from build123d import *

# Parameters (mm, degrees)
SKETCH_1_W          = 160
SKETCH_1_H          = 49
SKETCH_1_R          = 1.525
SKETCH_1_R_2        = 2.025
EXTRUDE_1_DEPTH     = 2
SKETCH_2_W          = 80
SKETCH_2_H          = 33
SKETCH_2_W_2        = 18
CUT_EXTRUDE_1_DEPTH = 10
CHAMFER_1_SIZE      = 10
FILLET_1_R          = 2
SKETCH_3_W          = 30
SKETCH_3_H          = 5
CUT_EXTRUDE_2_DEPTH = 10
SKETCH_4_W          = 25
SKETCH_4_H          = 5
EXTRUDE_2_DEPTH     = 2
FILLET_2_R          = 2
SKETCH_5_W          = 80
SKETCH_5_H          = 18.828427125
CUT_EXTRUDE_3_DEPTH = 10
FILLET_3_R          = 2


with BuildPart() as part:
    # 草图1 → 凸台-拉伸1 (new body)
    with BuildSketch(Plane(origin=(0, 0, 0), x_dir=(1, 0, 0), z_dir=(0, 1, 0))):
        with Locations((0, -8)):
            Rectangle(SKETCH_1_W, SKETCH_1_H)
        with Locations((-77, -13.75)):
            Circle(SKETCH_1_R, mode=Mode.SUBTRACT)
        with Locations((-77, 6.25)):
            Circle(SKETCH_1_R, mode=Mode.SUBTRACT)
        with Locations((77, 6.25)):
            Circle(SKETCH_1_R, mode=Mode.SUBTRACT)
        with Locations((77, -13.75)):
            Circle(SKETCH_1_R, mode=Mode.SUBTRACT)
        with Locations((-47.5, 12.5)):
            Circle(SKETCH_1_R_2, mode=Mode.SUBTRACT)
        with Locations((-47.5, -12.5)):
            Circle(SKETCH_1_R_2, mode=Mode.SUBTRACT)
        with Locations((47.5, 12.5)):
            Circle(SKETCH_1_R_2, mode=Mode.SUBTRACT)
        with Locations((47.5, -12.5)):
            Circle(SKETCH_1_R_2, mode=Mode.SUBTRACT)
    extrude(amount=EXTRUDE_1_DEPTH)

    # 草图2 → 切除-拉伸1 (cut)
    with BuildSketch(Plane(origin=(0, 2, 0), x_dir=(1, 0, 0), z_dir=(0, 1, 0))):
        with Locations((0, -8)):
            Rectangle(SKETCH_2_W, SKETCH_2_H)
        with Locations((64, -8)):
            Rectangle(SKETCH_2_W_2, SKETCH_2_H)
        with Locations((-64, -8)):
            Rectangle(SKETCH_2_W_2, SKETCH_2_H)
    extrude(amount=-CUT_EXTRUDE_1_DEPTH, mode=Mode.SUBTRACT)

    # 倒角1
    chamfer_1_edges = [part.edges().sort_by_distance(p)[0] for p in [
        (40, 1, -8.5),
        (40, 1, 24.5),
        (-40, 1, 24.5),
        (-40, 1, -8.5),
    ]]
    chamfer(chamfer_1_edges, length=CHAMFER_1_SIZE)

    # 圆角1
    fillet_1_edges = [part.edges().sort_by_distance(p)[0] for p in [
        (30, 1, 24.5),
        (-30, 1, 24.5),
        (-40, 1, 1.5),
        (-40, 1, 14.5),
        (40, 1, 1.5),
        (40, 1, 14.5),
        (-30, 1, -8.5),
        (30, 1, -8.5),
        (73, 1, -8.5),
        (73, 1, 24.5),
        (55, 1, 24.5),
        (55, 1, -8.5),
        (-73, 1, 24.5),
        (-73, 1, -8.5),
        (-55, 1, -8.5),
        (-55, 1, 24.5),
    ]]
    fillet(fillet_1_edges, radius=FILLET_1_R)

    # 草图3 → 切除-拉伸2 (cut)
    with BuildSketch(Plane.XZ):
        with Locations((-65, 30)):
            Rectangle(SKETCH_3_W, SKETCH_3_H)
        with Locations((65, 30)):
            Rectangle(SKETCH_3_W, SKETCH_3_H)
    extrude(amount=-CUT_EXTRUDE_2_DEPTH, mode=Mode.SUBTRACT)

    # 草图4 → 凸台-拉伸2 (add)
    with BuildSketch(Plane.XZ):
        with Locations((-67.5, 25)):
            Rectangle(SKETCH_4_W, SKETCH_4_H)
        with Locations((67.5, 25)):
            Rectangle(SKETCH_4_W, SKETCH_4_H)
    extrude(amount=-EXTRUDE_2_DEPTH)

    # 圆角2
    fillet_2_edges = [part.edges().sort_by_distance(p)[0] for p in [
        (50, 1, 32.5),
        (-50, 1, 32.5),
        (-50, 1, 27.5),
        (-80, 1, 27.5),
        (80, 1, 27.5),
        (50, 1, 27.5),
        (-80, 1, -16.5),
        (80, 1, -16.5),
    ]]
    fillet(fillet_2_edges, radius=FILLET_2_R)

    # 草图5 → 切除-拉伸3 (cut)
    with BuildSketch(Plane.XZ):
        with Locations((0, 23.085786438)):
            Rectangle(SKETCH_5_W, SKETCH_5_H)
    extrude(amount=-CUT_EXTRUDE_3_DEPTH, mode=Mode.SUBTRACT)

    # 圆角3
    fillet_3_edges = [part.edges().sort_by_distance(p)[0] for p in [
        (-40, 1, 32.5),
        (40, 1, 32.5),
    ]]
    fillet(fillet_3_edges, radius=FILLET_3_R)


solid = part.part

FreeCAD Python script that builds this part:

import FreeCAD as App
import Part
import Sketcher
Q = App.Units.Quantity


def edges_at(feature, points):
    """Names of the edges that pass closest to the given points."""
    edges = feature.Shape.Edges
    near = lambda p: min(range(len(edges)), key=lambda i: edges[i].distToShape(Part.Vertex(*p))[0])
    return sorted({f"Edge{near(p) + 1}" for p in points})

doc = App.newDocument("Part")
body = doc.addObject("PartDesign::Body", "Body")

sketch1 = body.newObject("Sketcher::SketchObject", "Sketch")
sketch1.AttachmentSupport = (doc.getObject("XZ_Plane"), [""])
sketch1.MapMode = "FlatFace"
sketch1.addGeometry(Part.LineSegment(App.Vector(-80, -16.5, 0), App.Vector(-80, 32.5, 0)), False)
sketch1.addGeometry(Part.LineSegment(App.Vector(-80, 32.5, 0), App.Vector(80, 32.5, 0)), False)
sketch1.addGeometry(Part.LineSegment(App.Vector(80, 32.5, 0), App.Vector(80, -16.5, 0)), False)
sketch1.addGeometry(Part.LineSegment(App.Vector(80, -16.5, 0), App.Vector(-80, -16.5, 0)), False)
sketch1.addGeometry(Part.Circle(App.Vector(-77, 13.8, 0), App.Vector(0, 0, 1), 1.5), False)
sketch1.addGeometry(Part.Circle(App.Vector(-47.5, 12.5, 0), App.Vector(0, 0, 1), 2), False)
sketch1.addGeometry(Part.Circle(App.Vector(47.5, 12.5, 0), App.Vector(0, 0, 1), 2), False)
sketch1.addGeometry(Part.Circle(App.Vector(77, 13.8, 0), App.Vector(0, 0, 1), 1.5), False)
sketch1.addGeometry(Part.Circle(App.Vector(-77, -6.2, 0), App.Vector(0, 0, 1), 1.5), False)
sketch1.addGeometry(Part.Circle(App.Vector(-47.5, -12.5, 0), App.Vector(0, 0, 1), 2), False)
sketch1.addGeometry(Part.Circle(App.Vector(77, -6.2, 0), App.Vector(0, 0, 1), 1.5), False)
sketch1.addGeometry(Part.Circle(App.Vector(47.5, -12.5, 0), App.Vector(0, 0, 1), 2), False)
sketch1.addConstraint(Sketcher.Constraint("Coincident", 0, 2, 1, 1))
sketch1.addConstraint(Sketcher.Constraint("Coincident", 1, 2, 2, 1))
sketch1.addConstraint(Sketcher.Constraint("Coincident", 2, 2, 3, 1))
sketch1.addConstraint(Sketcher.Constraint("Coincident", 3, 2, 0, 1))
sketch1.addConstraint(Sketcher.Constraint("Vertical", 0))
sketch1.addConstraint(Sketcher.Constraint("Horizontal", 1))
sketch1.addConstraint(Sketcher.Constraint("Vertical", 2))
sketch1.addConstraint(Sketcher.Constraint("Horizontal", 3))
sketch1.addConstraint(Sketcher.Constraint("Equal", 5, 6))
sketch1.addConstraint(Sketcher.Constraint("Equal", 4, 7))
sketch1.addConstraint(Sketcher.Constraint("Equal", 7, 8))
sketch1.addConstraint(Sketcher.Constraint("Equal", 6, 9))
sketch1.addConstraint(Sketcher.Constraint("Equal", 8, 10))
sketch1.addConstraint(Sketcher.Constraint("Equal", 9, 11))
sketch1.addConstraint(Sketcher.Constraint("Symmetric", 6, 3, 9, 3, -1, 1))
sketch1.addConstraint(Sketcher.Constraint("Symmetric", 5, 3, 11, 3, -1, 1))
sketch1.addConstraint(Sketcher.Constraint("Symmetric", 5, 3, 6, 3, -2))
sketch1.addConstraint(Sketcher.Constraint("Symmetric", 4, 3, 7, 3, -2))
sketch1.addConstraint(Sketcher.Constraint("Symmetric", 8, 3, 10, 3, -2))
sketch1.addConstraint(Sketcher.Constraint("Vertical", 4, 3, 8, 3))
sketch1.addConstraint(Sketcher.Constraint("Diameter", 4, Q("3.05 mm")))
sketch1.addConstraint(Sketcher.Constraint("Diameter", 5, Q("4.05 mm")))
sketch1.addConstraint(Sketcher.Constraint("DistanceX", 1, 1, 1, 2, Q("160 mm")))
sketch1.addConstraint(Sketcher.Constraint("DistanceY", 0, 1, 0, 2, Q("49 mm")))
sketch1.addConstraint(Sketcher.Constraint("DistanceX", 4, 3, -1, 1, Q("77 mm")))
sketch1.addConstraint(Sketcher.Constraint("DistanceX", 0, 2, -1, 1, Q("80 mm")))
sketch1.addConstraint(Sketcher.Constraint("DistanceX", 5, 3, 6, 3, Q("95 mm")))
sketch1.addConstraint(Sketcher.Constraint("DistanceY", 8, 3, 4, 3, Q("20 mm")))
sketch1.addConstraint(Sketcher.Constraint("DistanceY", 9, 3, 5, 3, Q("25 mm")))
sketch1.addConstraint(Sketcher.Constraint("DistanceY", 5, 3, 0, 2, Q("20 mm")))
sketch1.addConstraint(Sketcher.Constraint("DistanceY", -1, 1, 4, 3, Q("13.75 mm")))
pad1 = body.newObject("PartDesign::Pad", "Pad")
pad1.Profile = sketch1
pad1.Length = 2
pad1.Reversed = True

sketch2 = body.newObject("Sketcher::SketchObject", "Sketch001")
sketch2.AttachmentSupport = (doc.getObject("XZ_Plane"), [""])
sketch2.MapMode = "FlatFace"
sketch2.AttachmentOffset = App.Placement(App.Vector(0, 0, -2), App.Rotation())
sketch2.addGeometry(Part.LineSegment(App.Vector(-40, -8, 0), App.Vector(-40, 24, 0)), False)
sketch2.addGeometry(Part.LineSegment(App.Vector(-40, 24, 0), App.Vector(40, 24, 0)), False)
sketch2.addGeometry(Part.LineSegment(App.Vector(40, 24, 0), App.Vector(40, -8, 0)), False)
sketch2.addGeometry(Part.LineSegment(App.Vector(40, -8, 0), App.Vector(-40, -8, 0)), False)
sketch2.addGeometry(Part.LineSegment(App.Vector(55, -8, 0), App.Vector(55, 24, 0)), False)
sketch2.addGeometry(Part.LineSegment(App.Vector(55, 24, 0), App.Vector(73, 24, 0)), False)
sketch2.addGeometry(Part.LineSegment(App.Vector(73, 24, 0), App.Vector(73, -8, 0)), False)
sketch2.addGeometry(Part.LineSegment(App.Vector(73, -8, 0), App.Vector(55, -8, 0)), False)
sketch2.addGeometry(Part.LineSegment(App.Vector(-73, -8, 0), App.Vector(-73, 24, 0)), False)
sketch2.addGeometry(Part.LineSegment(App.Vector(-73, 24, 0), App.Vector(-55, 24, 0)), False)
sketch2.addGeometry(Part.LineSegment(App.Vector(-55, 24, 0), App.Vector(-55, -8, 0)), False)
sketch2.addGeometry(Part.LineSegment(App.Vector(-55, -8, 0), App.Vector(-73, -8, 0)), False)
sketch2.addConstraint(Sketcher.Constraint("Coincident", 0, 2, 1, 1))
sketch2.addConstraint(Sketcher.Constraint("Coincident", 1, 2, 2, 1))
sketch2.addConstraint(Sketcher.Constraint("Coincident", 2, 2, 3, 1))
sketch2.addConstraint(Sketcher.Constraint("Coincident", 3, 2, 0, 1))
sketch2.addConstraint(Sketcher.Constraint("Coincident", 4, 2, 5, 1))
sketch2.addConstraint(Sketcher.Constraint("Coincident", 5, 2, 6, 1))
sketch2.addConstraint(Sketcher.Constraint("Coincident", 6, 2, 7, 1))
sketch2.addConstraint(Sketcher.Constraint("Coincident", 7, 2, 4, 1))
sketch2.addConstraint(Sketcher.Constraint("Coincident", 8, 2, 9, 1))
sketch2.addConstraint(Sketcher.Constraint("Coincident", 9, 2, 10, 1))
sketch2.addConstraint(Sketcher.Constraint("Coincident", 10, 2, 11, 1))
sketch2.addConstraint(Sketcher.Constraint("Coincident", 11, 2, 8, 1))
sketch2.addConstraint(Sketcher.Constraint("Vertical", 0))
sketch2.addConstraint(Sketcher.Constraint("Horizontal", 1))
sketch2.addConstraint(Sketcher.Constraint("Vertical", 2))
sketch2.addConstraint(Sketcher.Constraint("Horizontal", 3))
sketch2.addConstraint(Sketcher.Constraint("Vertical", 4))
sketch2.addConstraint(Sketcher.Constraint("Horizontal", 5))
sketch2.addConstraint(Sketcher.Constraint("Vertical", 6))
sketch2.addConstraint(Sketcher.Constraint("Horizontal", 7))
sketch2.addConstraint(Sketcher.Constraint("Vertical", 8))
sketch2.addConstraint(Sketcher.Constraint("Horizontal", 9))
sketch2.addConstraint(Sketcher.Constraint("Vertical", 10))
sketch2.addConstraint(Sketcher.Constraint("Horizontal", 11))
sketch2.addConstraint(Sketcher.Constraint("Symmetric", 5, 2, 8, 2, -2))
sketch2.addConstraint(Sketcher.Constraint("Symmetric", 7, 2, 10, 2, -2))
sketch2.addConstraint(Sketcher.Constraint("Horizontal", 1, 2, 4, 2))
sketch2.addConstraint(Sketcher.Constraint("Horizontal", 3, 2, 6, 2))
sketch2.addConstraint(Sketcher.Constraint("DistanceX", 1, 1, 1, 2, Q("80 mm")))
sketch2.addConstraint(Sketcher.Constraint("DistanceX", 5, 1, 5, 2, Q("18 mm")))
sketch2.addConstraint(Sketcher.Constraint("DistanceY", 0, 1, 0, 2, Q("33 mm")))
sketch2.addConstraint(Sketcher.Constraint("DistanceX", 0, 2, -1, 1, Q("40 mm")))
sketch2.addConstraint(Sketcher.Constraint("DistanceX", -1, 1, 4, 2, Q("55 mm")))
sketch2.addConstraint(Sketcher.Constraint("DistanceY", -1, 1, 0, 2, Q("24.5 mm")))
pocket1 = body.newObject("PartDesign::Pocket", "Pocket")
pocket1.Profile = sketch2
pocket1.Length = 10
pocket1.Reversed = True
doc.recompute()

chamfer = body.newObject("PartDesign::Chamfer", "Chamfer")
chamfer.Base = (pocket1, edges_at(pocket1, [
    (40, 1, -8.5),
    (40, 1, 24.5),
    (-40, 1, 24.5),
    (-40, 1, -8.5),
]))
chamfer.Size = 10
doc.recompute()

fillet = body.newObject("PartDesign::Fillet", "Fillet")
fillet.Base = (chamfer, edges_at(chamfer, [
    (30, 1, 24.5),
    (-30, 1, 24.5),
    (-40, 1, 1.5),
    (-40, 1, 14.5),
    (40, 1, 1.5),
    (40, 1, 14.5),
    (-30, 1, -8.5),
    (30, 1, -8.5),
    (73, 1, -8.5),
    (73, 1, 24.5),
    (55, 1, 24.5),
    (55, 1, -8.5),
    (-73, 1, 24.5),
    (-73, 1, -8.5),
    (-55, 1, -8.5),
    (-55, 1, 24.5),
]))
fillet.Radius = 2

sketch3 = body.newObject("Sketcher::SketchObject", "Sketch002")
sketch3.AttachmentSupport = (doc.getObject("XZ_Plane"), [""])
sketch3.MapMode = "FlatFace"
sketch3.addGeometry(Part.LineSegment(App.Vector(-80, 32, 0), App.Vector(-80, 28, 0)), False)
sketch3.addGeometry(Part.LineSegment(App.Vector(-80, 28, 0), App.Vector(-50, 28, 0)), False)
sketch3.addGeometry(Part.LineSegment(App.Vector(-50, 28, 0), App.Vector(-50, 32, 0)), False)
sketch3.addGeometry(Part.LineSegment(App.Vector(-50, 32, 0), App.Vector(-80, 32, 0)), False)
sketch3.addGeometry(Part.LineSegment(App.Vector(50, 32, 0), App.Vector(50, 28, 0)), False)
sketch3.addGeometry(Part.LineSegment(App.Vector(50, 28, 0), App.Vector(80, 28, 0)), False)
sketch3.addGeometry(Part.LineSegment(App.Vector(80, 28, 0), App.Vector(80, 32, 0)), False)
sketch3.addGeometry(Part.LineSegment(App.Vector(80, 32, 0), App.Vector(50, 32, 0)), False)
sketch3.addConstraint(Sketcher.Constraint("Coincident", 0, 2, 1, 1))
sketch3.addConstraint(Sketcher.Constraint("Coincident", 1, 2, 2, 1))
sketch3.addConstraint(Sketcher.Constraint("Coincident", 2, 2, 3, 1))
sketch3.addConstraint(Sketcher.Constraint("Coincident", 3, 2, 0, 1))
sketch3.addConstraint(Sketcher.Constraint("Coincident", 4, 2, 5, 1))
sketch3.addConstraint(Sketcher.Constraint("Coincident", 5, 2, 6, 1))
sketch3.addConstraint(Sketcher.Constraint("Coincident", 6, 2, 7, 1))
sketch3.addConstraint(Sketcher.Constraint("Coincident", 7, 2, 4, 1))
sketch3.addConstraint(Sketcher.Constraint("Vertical", 0))
sketch3.addConstraint(Sketcher.Constraint("Horizontal", 1))
sketch3.addConstraint(Sketcher.Constraint("Vertical", 2))
sketch3.addConstraint(Sketcher.Constraint("Horizontal", 3))
sketch3.addConstraint(Sketcher.Constraint("Vertical", 4))
sketch3.addConstraint(Sketcher.Constraint("Horizontal", 5))
sketch3.addConstraint(Sketcher.Constraint("Vertical", 6))
sketch3.addConstraint(Sketcher.Constraint("Horizontal", 7))
sketch3.addConstraint(Sketcher.Constraint("Symmetric", 1, 2, 4, 2, -2))
sketch3.addConstraint(Sketcher.Constraint("Symmetric", 3, 2, 6, 2, -2))
sketch3.addConstraint(Sketcher.Constraint("DistanceX", 1, 1, 1, 2, Q("30 mm")))
sketch3.addConstraint(Sketcher.Constraint("DistanceY", 0, 2, 0, 1, Q("5 mm")))
sketch3.addConstraint(Sketcher.Constraint("DistanceX", 0, 2, -1, 1, Q("80 mm")))
sketch3.addConstraint(Sketcher.Constraint("DistanceY", -1, 1, 0, 2, Q("27.5 mm")))
pocket2 = body.newObject("PartDesign::Pocket", "Pocket001")
pocket2.Profile = sketch3
pocket2.Length = 10

sketch4 = body.newObject("Sketcher::SketchObject", "Sketch003")
sketch4.AttachmentSupport = (doc.getObject("XZ_Plane"), [""])
sketch4.MapMode = "FlatFace"
sketch4.addGeometry(Part.LineSegment(App.Vector(-80, 28, 0), App.Vector(-80, 22, 0)), False)
sketch4.addGeometry(Part.LineSegment(App.Vector(-80, 22, 0), App.Vector(-55, 22, 0)), False)
sketch4.addGeometry(Part.LineSegment(App.Vector(-55, 22, 0), App.Vector(-55, 28, 0)), False)
sketch4.addGeometry(Part.LineSegment(App.Vector(-55, 28, 0), App.Vector(-80, 28, 0)), False)
sketch4.addGeometry(Part.LineSegment(App.Vector(55, 28, 0), App.Vector(55, 22, 0)), False)
sketch4.addGeometry(Part.LineSegment(App.Vector(55, 22, 0), App.Vector(80, 22, 0)), False)
sketch4.addGeometry(Part.LineSegment(App.Vector(80, 22, 0), App.Vector(80, 28, 0)), False)
sketch4.addGeometry(Part.LineSegment(App.Vector(80, 28, 0), App.Vector(55, 28, 0)), False)
sketch4.addConstraint(Sketcher.Constraint("Coincident", 0, 2, 1, 1))
sketch4.addConstraint(Sketcher.Constraint("Coincident", 1, 2, 2, 1))
sketch4.addConstraint(Sketcher.Constraint("Coincident", 2, 2, 3, 1))
sketch4.addConstraint(Sketcher.Constraint("Coincident", 3, 2, 0, 1))
sketch4.addConstraint(Sketcher.Constraint("Coincident", 4, 2, 5, 1))
sketch4.addConstraint(Sketcher.Constraint("Coincident", 5, 2, 6, 1))
sketch4.addConstraint(Sketcher.Constraint("Coincident", 6, 2, 7, 1))
sketch4.addConstraint(Sketcher.Constraint("Coincident", 7, 2, 4, 1))
sketch4.addConstraint(Sketcher.Constraint("Vertical", 0))
sketch4.addConstraint(Sketcher.Constraint("Horizontal", 1))
sketch4.addConstraint(Sketcher.Constraint("Vertical", 2))
sketch4.addConstraint(Sketcher.Constraint("Horizontal", 3))
sketch4.addConstraint(Sketcher.Constraint("Vertical", 4))
sketch4.addConstraint(Sketcher.Constraint("Horizontal", 5))
sketch4.addConstraint(Sketcher.Constraint("Vertical", 6))
sketch4.addConstraint(Sketcher.Constraint("Horizontal", 7))
sketch4.addConstraint(Sketcher.Constraint("Symmetric", 1, 2, 4, 2, -2))
sketch4.addConstraint(Sketcher.Constraint("Symmetric", 3, 2, 6, 2, -2))
sketch4.addConstraint(Sketcher.Constraint("DistanceX", 1, 1, 1, 2, Q("25 mm")))
sketch4.addConstraint(Sketcher.Constraint("DistanceY", 0, 2, 0, 1, Q("5 mm")))
sketch4.addConstraint(Sketcher.Constraint("DistanceX", 0, 2, -1, 1, Q("80 mm")))
sketch4.addConstraint(Sketcher.Constraint("DistanceY", -1, 1, 0, 2, Q("22.5 mm")))
pad2 = body.newObject("PartDesign::Pad", "Pad001")
pad2.Profile = sketch4
pad2.Length = 2
pad2.Reversed = True
doc.recompute()

fillet2 = body.newObject("PartDesign::Fillet", "Fillet001")
fillet2.Base = (pad2, edges_at(pad2, [
    (50, 1, 32.5),
    (-50, 1, 32.5),
    (-50, 1, 27.5),
    (-80, 1, 27.5),
    (80, 1, 27.5),
    (50, 1, 27.5),
    (-80, 1, -16.5),
    (80, 1, -16.5),
]))
fillet2.Radius = 2

sketch5 = body.newObject("Sketcher::SketchObject", "Sketch004")
sketch5.AttachmentSupport = (doc.getObject("XZ_Plane"), [""])
sketch5.MapMode = "FlatFace"
sketch5.addGeometry(Part.LineSegment(App.Vector(-40, 33, 0), App.Vector(-40, 14, 0)), False)
sketch5.addGeometry(Part.LineSegment(App.Vector(-40, 14, 0), App.Vector(40, 14, 0)), False)
sketch5.addGeometry(Part.LineSegment(App.Vector(40, 14, 0), App.Vector(40, 33, 0)), False)
sketch5.addGeometry(Part.LineSegment(App.Vector(40, 33, 0), App.Vector(-40, 33, 0)), False)
sketch5.addConstraint(Sketcher.Constraint("Coincident", 0, 2, 1, 1))
sketch5.addConstraint(Sketcher.Constraint("Coincident", 1, 2, 2, 1))
sketch5.addConstraint(Sketcher.Constraint("Coincident", 2, 2, 3, 1))
sketch5.addConstraint(Sketcher.Constraint("Coincident", 3, 2, 0, 1))
sketch5.addConstraint(Sketcher.Constraint("Vertical", 0))
sketch5.addConstraint(Sketcher.Constraint("Horizontal", 1))
sketch5.addConstraint(Sketcher.Constraint("Vertical", 2))
sketch5.addConstraint(Sketcher.Constraint("Horizontal", 3))
sketch5.addConstraint(Sketcher.Constraint("DistanceX", 1, 1, 1, 2, Q("80 mm")))
sketch5.addConstraint(Sketcher.Constraint("DistanceX", 0, 2, -1, 1, Q("40 mm")))
sketch5.addConstraint(Sketcher.Constraint("DistanceY", -1, 1, 2, 2, Q("32.5 mm")))
sketch5.addConstraint(Sketcher.Constraint("DistanceY", 0, 2, 0, 1, Q("18.828427 mm")))
pocket3 = body.newObject("PartDesign::Pocket", "Pocket002")
pocket3.Profile = sketch5
pocket3.Length = 10
doc.recompute()

fillet3 = body.newObject("PartDesign::Fillet", "Fillet002")
fillet3.Base = (pocket3, edges_at(pocket3, [(-40, 1, 32.5), (40, 1, 32.5)]))
fillet3.Radius = 2

doc.recompute()
